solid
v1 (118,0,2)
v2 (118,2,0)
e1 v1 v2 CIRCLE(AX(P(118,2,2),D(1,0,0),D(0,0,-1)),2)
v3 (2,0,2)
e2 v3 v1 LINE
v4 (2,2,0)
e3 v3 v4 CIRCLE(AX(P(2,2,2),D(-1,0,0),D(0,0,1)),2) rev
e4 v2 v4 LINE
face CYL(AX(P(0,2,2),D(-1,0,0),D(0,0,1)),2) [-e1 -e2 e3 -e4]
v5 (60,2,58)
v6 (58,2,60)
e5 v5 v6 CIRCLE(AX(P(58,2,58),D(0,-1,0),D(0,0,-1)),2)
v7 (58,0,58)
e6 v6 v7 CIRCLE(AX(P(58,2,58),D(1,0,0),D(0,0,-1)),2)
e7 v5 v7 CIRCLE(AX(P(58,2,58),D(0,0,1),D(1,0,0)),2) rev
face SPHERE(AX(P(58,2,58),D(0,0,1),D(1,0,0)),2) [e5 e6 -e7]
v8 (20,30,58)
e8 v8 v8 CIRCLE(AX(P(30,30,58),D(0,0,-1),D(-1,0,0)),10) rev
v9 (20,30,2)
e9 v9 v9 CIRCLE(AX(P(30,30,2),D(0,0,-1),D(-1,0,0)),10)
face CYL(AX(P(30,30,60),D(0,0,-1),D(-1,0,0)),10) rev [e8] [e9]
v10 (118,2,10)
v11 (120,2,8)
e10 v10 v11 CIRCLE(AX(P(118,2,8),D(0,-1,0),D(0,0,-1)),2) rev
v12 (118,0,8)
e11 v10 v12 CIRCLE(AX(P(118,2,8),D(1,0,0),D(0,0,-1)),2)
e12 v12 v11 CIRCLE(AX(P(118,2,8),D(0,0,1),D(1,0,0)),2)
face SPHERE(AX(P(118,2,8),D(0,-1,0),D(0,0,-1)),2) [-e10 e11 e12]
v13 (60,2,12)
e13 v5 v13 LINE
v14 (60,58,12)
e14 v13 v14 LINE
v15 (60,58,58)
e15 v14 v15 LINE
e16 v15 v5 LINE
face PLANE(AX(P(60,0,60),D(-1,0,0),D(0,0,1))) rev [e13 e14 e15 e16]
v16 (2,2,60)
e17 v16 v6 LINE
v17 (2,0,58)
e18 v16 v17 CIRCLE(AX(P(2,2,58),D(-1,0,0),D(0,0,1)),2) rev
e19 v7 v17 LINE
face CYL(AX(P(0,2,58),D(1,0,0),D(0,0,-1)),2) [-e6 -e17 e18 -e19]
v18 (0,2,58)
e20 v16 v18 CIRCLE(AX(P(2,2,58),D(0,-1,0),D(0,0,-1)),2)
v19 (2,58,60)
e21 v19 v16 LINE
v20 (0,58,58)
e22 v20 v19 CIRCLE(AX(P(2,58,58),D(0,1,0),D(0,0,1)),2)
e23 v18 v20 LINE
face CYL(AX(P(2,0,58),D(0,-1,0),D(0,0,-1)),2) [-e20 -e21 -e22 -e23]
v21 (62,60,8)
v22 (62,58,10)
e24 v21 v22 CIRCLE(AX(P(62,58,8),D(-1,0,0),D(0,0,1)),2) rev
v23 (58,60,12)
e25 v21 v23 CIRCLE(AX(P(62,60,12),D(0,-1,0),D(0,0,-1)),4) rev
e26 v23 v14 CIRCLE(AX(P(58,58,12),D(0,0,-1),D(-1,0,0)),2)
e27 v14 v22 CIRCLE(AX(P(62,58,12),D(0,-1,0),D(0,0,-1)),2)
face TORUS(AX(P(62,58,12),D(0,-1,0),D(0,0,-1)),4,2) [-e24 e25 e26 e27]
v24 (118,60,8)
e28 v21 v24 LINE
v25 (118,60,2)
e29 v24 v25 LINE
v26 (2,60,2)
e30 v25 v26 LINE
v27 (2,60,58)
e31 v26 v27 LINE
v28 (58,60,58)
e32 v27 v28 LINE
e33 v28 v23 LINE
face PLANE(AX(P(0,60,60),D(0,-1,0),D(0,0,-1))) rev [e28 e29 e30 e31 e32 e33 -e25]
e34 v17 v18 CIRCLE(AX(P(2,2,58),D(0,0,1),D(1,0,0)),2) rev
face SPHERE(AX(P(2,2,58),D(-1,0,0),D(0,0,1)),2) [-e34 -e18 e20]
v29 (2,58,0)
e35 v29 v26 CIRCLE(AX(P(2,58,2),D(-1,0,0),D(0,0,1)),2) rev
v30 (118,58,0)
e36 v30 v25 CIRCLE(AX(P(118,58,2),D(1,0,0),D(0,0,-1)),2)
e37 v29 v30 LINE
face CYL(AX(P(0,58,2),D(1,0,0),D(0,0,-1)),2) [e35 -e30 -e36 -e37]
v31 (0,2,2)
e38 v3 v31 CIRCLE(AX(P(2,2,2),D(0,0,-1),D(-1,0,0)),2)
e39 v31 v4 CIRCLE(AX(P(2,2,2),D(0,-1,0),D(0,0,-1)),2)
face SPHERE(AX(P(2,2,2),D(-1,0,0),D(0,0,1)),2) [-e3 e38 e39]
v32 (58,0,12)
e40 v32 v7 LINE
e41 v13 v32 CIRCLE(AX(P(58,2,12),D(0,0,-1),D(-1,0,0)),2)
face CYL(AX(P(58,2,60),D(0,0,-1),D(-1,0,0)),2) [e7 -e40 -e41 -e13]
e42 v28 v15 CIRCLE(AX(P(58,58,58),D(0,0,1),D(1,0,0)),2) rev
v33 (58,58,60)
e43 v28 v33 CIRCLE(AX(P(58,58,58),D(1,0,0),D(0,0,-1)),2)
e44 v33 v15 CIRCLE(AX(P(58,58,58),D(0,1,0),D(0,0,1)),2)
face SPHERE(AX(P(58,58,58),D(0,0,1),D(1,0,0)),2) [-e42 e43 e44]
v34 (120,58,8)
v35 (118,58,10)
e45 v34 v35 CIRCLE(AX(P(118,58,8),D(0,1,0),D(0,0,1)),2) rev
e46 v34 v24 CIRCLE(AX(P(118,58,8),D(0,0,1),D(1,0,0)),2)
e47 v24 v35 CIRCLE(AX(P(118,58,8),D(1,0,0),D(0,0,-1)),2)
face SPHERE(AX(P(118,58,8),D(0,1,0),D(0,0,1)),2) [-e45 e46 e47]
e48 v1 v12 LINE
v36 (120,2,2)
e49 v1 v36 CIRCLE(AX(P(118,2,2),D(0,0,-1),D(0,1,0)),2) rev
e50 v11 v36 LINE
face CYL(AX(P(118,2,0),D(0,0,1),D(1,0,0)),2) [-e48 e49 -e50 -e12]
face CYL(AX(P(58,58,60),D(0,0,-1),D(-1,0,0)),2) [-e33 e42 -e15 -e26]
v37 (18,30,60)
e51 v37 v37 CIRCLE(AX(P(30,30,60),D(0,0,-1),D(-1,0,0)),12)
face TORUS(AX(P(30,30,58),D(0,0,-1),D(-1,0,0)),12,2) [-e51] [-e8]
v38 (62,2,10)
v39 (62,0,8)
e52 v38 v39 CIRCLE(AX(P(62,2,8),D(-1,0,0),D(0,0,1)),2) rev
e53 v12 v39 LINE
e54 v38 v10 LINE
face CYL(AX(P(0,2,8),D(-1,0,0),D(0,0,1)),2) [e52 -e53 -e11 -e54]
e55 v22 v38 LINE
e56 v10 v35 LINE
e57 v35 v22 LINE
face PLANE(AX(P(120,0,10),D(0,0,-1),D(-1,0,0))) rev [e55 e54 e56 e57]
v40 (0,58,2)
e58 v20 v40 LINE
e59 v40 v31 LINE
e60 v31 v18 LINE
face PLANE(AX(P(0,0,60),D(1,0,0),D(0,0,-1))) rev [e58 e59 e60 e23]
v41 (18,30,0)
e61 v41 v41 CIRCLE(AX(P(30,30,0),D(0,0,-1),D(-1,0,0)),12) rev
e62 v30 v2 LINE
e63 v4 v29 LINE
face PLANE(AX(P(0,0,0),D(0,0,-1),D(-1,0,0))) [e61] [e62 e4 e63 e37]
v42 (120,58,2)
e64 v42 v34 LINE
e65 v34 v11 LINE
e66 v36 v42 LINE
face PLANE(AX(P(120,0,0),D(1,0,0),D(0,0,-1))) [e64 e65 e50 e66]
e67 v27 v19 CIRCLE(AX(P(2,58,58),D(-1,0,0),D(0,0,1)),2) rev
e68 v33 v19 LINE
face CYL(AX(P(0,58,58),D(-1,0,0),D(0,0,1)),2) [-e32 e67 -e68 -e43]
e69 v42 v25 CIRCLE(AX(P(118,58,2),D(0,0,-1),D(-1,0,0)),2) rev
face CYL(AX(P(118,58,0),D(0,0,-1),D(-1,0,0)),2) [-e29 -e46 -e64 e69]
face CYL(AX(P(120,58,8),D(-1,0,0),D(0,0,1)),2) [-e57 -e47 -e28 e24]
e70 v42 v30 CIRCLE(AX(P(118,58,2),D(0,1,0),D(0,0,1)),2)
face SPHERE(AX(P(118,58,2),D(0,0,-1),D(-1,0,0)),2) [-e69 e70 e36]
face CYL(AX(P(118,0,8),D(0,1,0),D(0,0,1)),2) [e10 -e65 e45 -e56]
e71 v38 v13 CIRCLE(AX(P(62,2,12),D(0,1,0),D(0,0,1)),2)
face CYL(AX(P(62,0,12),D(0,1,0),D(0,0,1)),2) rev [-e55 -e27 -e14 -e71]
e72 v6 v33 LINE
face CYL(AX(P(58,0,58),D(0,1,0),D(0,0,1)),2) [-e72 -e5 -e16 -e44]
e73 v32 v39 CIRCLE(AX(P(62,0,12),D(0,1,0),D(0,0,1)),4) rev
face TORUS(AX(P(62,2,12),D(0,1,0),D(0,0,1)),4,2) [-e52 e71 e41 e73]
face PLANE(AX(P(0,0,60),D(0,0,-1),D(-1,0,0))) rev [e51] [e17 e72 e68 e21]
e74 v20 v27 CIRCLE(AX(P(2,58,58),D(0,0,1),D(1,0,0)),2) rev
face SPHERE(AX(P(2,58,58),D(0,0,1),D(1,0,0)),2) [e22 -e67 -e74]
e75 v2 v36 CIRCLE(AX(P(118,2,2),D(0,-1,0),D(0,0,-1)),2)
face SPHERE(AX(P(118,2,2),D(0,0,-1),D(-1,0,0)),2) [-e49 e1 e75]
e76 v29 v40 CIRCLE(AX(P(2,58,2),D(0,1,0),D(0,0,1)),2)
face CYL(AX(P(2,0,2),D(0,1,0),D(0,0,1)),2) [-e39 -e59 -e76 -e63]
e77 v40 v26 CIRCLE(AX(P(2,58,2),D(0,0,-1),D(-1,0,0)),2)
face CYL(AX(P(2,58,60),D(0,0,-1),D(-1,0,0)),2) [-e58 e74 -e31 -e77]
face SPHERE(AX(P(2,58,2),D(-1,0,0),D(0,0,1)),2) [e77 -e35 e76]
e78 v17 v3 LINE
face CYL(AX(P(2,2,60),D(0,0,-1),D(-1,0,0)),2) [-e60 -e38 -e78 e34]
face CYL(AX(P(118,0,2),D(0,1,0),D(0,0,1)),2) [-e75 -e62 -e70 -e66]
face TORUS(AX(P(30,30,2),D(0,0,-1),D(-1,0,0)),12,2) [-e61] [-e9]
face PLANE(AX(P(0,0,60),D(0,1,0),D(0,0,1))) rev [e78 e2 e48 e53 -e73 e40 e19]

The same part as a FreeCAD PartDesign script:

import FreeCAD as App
import Part
import Sketcher
from FreeCAD import Vector

doc = App.newDocument("Part")
body = doc.addObject("PartDesign::Body", "Body")

# Sketch on XY plane
sketch1 = body.newObject("Sketcher::SketchObject", "Sketch")
sketch1.AttachmentSupport = (doc.getObject("XY_Plane"), [""])
sketch1.MapMode = "FlatFace"
sketch1.addGeometry([
    Part.LineSegment(Vector(0, 60, 0), Vector(0, 0, 0)),  # 0
    Part.LineSegment(Vector(0, 0, 0), Vector(60, 0, 0)),  # 1
    Part.LineSegment(Vector(60, 0, 0), Vector(60, 60, 0)),  # 2
    Part.LineSegment(Vector(60, 60, 0), Vector(0, 60, 0)),  # 3
    Part.Circle(Vector(30, 30, 0), Vector(0, 0, 1), 10),  # 4
], False)
sketch1.addConstraint([
    Sketcher.Constraint("Coincident", 0, 2, 1, 1),
    Sketcher.Constraint("Coincident", 1, 2, 2, 1),
    Sketcher.Constraint("Coincident", 2, 2, 3, 1),
    Sketcher.Constraint("Coincident", 3, 2, 0, 1),
    Sketcher.Constraint("Vertical", 0),
    Sketcher.Constraint("Horizontal", 1),
    Sketcher.Constraint("Vertical", 2),
    Sketcher.Constraint("Horizontal", 3),
    Sketcher.Constraint("Coincident", 0, 2, -1, 1),
    Sketcher.Constraint("Equal", 3, 0),
    Sketcher.Constraint("Diameter", 4, 20.0),
    Sketcher.Constraint("DistanceX", 1, 1, 1, 2, 60.0),
    Sketcher.Constraint("DistanceX", -1, 1, 4, 3, 30.0),
    Sketcher.Constraint("DistanceY", -1, 1, 4, 3, 30.0),
])
pad1 = body.newObject("PartDesign::Pad", "Pad")
pad1.Profile = sketch1
pad1.Length = 60

# Sketch on YZ plane
sketch2 = body.newObject("Sketcher::SketchObject", "Sketch001")
sketch2.AttachmentSupport = (doc.getObject("YZ_Plane"), [""])
sketch2.MapMode = "FlatFace"
sketch2.AttachmentOffset = App.Placement(Vector(0, 0, 60), App.Rotation())
sketch2.addGeometry([
    Part.LineSegment(Vector(60, 10, 0), Vector(0, 10, 0)),
    Part.LineSegment(Vector(0, 10, 0), Vector(0, 0, 0)),
    Part.LineSegment(Vector(0, 0, 0), Vector(60, 0, 0)),
    Part.LineSegment(Vector(60, 0, 0), Vector(60, 10, 0)),
], False)
sketch2.addConstraint([
    Sketcher.Constraint("Coincident", 0, 2, 1, 1),
    Sketcher.Constraint("Coincident", 1, 2, 2, 1),
    Sketcher.Constraint("Coincident", 2, 2, 3, 1),
    Sketcher.Constraint("Coincident", 3, 2, 0, 1),
    Sketcher.Constraint("Horizontal", 0),
    Sketcher.Constraint("Vertical", 1),
    Sketcher.Constraint("Horizontal", 2),
    Sketcher.Constraint("Vertical", 3),
    Sketcher.Constraint("Coincident", 1, 2, -1, 1),
    Sketcher.Constraint("DistanceX", 0, 2, 0, 1, 60.0),
    Sketcher.Constraint("DistanceY", 1, 2, 1, 1, 10.0),
])
pad2 = body.newObject("PartDesign::Pad", "Pad001")
pad2.Profile = sketch2
pad2.Length = 60
doc.recompute()

fillet = body.newObject("PartDesign::Fillet", "Fillet")
fillet.Base = (pad2, ["Edge1"])
fillet.UseAllEdges = True
fillet.Radius = 2

doc.recompute()
